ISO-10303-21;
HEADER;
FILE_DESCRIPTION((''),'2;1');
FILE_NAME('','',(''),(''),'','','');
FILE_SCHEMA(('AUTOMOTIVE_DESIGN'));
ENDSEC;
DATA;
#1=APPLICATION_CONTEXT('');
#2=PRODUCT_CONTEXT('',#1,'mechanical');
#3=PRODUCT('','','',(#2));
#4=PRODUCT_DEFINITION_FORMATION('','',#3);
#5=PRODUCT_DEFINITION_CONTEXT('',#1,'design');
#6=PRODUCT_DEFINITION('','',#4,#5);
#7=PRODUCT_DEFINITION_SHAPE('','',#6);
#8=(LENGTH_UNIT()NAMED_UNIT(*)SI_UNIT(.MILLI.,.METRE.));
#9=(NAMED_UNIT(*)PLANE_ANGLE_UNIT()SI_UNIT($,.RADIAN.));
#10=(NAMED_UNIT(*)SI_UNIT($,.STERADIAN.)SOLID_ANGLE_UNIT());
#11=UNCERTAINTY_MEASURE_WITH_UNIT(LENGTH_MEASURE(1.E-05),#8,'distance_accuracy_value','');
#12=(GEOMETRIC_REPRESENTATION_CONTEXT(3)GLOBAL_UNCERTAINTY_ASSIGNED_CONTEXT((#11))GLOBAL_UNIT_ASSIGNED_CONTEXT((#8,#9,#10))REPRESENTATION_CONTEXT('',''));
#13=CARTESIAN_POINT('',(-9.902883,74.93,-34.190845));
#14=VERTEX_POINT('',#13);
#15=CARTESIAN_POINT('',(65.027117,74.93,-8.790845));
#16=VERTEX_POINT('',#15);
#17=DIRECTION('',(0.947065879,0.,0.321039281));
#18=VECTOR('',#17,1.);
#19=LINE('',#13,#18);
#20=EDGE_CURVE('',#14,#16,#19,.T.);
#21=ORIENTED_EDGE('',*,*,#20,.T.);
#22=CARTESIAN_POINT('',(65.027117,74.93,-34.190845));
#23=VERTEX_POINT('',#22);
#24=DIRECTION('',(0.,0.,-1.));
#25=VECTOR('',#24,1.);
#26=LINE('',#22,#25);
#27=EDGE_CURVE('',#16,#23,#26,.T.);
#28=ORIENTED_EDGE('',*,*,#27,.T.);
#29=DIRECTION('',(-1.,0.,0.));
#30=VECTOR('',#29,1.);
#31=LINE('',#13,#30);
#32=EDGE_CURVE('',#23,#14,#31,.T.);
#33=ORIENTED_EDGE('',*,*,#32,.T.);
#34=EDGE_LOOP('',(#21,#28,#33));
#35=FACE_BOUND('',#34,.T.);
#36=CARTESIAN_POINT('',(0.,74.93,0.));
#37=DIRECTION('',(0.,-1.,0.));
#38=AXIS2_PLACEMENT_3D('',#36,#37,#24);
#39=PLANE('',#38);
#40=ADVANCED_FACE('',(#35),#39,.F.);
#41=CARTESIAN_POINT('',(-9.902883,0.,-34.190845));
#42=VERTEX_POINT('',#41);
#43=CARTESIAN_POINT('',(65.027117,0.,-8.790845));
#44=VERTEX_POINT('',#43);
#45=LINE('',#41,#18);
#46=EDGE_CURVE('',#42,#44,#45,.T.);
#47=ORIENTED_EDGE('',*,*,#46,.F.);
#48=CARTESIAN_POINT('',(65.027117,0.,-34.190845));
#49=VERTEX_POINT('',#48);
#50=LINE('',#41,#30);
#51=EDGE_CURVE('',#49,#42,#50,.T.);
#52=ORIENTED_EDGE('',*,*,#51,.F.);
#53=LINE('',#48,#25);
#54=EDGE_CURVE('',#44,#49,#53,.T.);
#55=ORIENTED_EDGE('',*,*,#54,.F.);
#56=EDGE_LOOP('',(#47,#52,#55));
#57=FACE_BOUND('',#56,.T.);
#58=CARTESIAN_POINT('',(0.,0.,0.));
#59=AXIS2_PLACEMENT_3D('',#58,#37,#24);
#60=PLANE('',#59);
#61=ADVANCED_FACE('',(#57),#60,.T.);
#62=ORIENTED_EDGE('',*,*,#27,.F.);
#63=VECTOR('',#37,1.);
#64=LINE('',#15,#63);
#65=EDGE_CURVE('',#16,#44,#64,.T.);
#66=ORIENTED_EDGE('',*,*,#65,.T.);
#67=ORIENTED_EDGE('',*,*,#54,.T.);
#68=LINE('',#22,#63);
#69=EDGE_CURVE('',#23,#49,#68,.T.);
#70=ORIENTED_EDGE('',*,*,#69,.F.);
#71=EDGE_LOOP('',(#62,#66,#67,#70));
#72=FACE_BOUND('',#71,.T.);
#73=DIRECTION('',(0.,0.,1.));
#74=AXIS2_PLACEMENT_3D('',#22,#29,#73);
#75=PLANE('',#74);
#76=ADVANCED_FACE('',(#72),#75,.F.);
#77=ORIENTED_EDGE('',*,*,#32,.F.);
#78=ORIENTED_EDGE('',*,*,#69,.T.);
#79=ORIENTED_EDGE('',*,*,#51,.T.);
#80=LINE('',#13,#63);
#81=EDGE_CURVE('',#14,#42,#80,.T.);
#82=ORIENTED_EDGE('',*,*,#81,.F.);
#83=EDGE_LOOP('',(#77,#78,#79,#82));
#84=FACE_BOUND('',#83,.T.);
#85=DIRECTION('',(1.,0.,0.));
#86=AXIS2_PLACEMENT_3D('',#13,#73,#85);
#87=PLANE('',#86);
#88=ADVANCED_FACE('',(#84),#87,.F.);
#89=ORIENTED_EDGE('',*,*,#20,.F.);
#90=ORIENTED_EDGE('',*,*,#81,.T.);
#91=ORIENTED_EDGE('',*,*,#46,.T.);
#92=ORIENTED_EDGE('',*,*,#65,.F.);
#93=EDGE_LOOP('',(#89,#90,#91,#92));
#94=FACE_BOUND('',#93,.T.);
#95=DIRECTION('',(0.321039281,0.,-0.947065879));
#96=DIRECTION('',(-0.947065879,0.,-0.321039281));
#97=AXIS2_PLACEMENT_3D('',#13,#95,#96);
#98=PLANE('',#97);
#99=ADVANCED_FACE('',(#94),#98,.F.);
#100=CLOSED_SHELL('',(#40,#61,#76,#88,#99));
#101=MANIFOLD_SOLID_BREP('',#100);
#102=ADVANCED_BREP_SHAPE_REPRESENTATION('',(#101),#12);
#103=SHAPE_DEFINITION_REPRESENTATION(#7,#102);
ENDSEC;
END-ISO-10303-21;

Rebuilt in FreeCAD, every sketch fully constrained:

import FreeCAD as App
import Part
import Sketcher
from FreeCAD import Vector
Q = App.Units.Quantity

doc = App.newDocument("Part")
params = doc.addObject("Spreadsheet::Sheet", "Params")
for row, (alias, value) in enumerate([
    ("sketch1_height", "1 in"),
    ("sketch1_width", "2.95 in"),
    ("pad1_length", "2.95 in"),
], start=1):
    params.set(f"A{row}", alias)
    params.set(f"B{row}", "=" + value)
    params.setAlias(f"B{row}", alias)

body = doc.addObject("PartDesign::Body", "Body")

# Sketch on XZ plane
sketch1 = body.newObject("Sketcher::SketchObject", "Sketch")
sketch1.AttachmentSupport = (doc.getObject("XZ_Plane"), [""])
sketch1.MapMode = "FlatFace"
sketch1.addGeometry([
    Part.LineSegment(Vector(65, -34, 0), Vector(-10, -34, 0)),
    Part.LineSegment(Vector(-10, -34, 0), Vector(65, -9, 0)),
    Part.LineSegment(Vector(65, -9, 0), Vector(65, -34, 0)),
], False)
sketch1.addConstraint([
    Sketcher.Constraint("Coincident", 0, 2, 1, 1),
    Sketcher.Constraint("Coincident", 1, 2, 2, 1),
    Sketcher.Constraint("Coincident", 2, 2, 0, 1),
    Sketcher.Constraint("Horizontal", 0),
    Sketcher.Constraint("Vertical", 2),
    Sketcher.Constraint("DistanceY", 2, 2, 2, 1, Q("1 in")),
    Sketcher.Constraint("DistanceX", 0, 2, 0, 1, Q("2.95 in")),
    Sketcher.Constraint("DistanceX", 0, 2, -1, 1, 9.902883),
    Sketcher.Constraint("DistanceY", 0, 2, -1, 1, 34.190845),
])
sketch1.setExpression("Constraints[5]", "Params.sketch1_height")
sketch1.setExpression("Constraints[6]", "Params.sketch1_width")
pad1 = body.newObject("PartDesign::Pad", "Pad")
pad1.Profile = sketch1
pad1.setExpression("Length", "Params.pad1_length")
pad1.Reversed = True

doc.recompute()
